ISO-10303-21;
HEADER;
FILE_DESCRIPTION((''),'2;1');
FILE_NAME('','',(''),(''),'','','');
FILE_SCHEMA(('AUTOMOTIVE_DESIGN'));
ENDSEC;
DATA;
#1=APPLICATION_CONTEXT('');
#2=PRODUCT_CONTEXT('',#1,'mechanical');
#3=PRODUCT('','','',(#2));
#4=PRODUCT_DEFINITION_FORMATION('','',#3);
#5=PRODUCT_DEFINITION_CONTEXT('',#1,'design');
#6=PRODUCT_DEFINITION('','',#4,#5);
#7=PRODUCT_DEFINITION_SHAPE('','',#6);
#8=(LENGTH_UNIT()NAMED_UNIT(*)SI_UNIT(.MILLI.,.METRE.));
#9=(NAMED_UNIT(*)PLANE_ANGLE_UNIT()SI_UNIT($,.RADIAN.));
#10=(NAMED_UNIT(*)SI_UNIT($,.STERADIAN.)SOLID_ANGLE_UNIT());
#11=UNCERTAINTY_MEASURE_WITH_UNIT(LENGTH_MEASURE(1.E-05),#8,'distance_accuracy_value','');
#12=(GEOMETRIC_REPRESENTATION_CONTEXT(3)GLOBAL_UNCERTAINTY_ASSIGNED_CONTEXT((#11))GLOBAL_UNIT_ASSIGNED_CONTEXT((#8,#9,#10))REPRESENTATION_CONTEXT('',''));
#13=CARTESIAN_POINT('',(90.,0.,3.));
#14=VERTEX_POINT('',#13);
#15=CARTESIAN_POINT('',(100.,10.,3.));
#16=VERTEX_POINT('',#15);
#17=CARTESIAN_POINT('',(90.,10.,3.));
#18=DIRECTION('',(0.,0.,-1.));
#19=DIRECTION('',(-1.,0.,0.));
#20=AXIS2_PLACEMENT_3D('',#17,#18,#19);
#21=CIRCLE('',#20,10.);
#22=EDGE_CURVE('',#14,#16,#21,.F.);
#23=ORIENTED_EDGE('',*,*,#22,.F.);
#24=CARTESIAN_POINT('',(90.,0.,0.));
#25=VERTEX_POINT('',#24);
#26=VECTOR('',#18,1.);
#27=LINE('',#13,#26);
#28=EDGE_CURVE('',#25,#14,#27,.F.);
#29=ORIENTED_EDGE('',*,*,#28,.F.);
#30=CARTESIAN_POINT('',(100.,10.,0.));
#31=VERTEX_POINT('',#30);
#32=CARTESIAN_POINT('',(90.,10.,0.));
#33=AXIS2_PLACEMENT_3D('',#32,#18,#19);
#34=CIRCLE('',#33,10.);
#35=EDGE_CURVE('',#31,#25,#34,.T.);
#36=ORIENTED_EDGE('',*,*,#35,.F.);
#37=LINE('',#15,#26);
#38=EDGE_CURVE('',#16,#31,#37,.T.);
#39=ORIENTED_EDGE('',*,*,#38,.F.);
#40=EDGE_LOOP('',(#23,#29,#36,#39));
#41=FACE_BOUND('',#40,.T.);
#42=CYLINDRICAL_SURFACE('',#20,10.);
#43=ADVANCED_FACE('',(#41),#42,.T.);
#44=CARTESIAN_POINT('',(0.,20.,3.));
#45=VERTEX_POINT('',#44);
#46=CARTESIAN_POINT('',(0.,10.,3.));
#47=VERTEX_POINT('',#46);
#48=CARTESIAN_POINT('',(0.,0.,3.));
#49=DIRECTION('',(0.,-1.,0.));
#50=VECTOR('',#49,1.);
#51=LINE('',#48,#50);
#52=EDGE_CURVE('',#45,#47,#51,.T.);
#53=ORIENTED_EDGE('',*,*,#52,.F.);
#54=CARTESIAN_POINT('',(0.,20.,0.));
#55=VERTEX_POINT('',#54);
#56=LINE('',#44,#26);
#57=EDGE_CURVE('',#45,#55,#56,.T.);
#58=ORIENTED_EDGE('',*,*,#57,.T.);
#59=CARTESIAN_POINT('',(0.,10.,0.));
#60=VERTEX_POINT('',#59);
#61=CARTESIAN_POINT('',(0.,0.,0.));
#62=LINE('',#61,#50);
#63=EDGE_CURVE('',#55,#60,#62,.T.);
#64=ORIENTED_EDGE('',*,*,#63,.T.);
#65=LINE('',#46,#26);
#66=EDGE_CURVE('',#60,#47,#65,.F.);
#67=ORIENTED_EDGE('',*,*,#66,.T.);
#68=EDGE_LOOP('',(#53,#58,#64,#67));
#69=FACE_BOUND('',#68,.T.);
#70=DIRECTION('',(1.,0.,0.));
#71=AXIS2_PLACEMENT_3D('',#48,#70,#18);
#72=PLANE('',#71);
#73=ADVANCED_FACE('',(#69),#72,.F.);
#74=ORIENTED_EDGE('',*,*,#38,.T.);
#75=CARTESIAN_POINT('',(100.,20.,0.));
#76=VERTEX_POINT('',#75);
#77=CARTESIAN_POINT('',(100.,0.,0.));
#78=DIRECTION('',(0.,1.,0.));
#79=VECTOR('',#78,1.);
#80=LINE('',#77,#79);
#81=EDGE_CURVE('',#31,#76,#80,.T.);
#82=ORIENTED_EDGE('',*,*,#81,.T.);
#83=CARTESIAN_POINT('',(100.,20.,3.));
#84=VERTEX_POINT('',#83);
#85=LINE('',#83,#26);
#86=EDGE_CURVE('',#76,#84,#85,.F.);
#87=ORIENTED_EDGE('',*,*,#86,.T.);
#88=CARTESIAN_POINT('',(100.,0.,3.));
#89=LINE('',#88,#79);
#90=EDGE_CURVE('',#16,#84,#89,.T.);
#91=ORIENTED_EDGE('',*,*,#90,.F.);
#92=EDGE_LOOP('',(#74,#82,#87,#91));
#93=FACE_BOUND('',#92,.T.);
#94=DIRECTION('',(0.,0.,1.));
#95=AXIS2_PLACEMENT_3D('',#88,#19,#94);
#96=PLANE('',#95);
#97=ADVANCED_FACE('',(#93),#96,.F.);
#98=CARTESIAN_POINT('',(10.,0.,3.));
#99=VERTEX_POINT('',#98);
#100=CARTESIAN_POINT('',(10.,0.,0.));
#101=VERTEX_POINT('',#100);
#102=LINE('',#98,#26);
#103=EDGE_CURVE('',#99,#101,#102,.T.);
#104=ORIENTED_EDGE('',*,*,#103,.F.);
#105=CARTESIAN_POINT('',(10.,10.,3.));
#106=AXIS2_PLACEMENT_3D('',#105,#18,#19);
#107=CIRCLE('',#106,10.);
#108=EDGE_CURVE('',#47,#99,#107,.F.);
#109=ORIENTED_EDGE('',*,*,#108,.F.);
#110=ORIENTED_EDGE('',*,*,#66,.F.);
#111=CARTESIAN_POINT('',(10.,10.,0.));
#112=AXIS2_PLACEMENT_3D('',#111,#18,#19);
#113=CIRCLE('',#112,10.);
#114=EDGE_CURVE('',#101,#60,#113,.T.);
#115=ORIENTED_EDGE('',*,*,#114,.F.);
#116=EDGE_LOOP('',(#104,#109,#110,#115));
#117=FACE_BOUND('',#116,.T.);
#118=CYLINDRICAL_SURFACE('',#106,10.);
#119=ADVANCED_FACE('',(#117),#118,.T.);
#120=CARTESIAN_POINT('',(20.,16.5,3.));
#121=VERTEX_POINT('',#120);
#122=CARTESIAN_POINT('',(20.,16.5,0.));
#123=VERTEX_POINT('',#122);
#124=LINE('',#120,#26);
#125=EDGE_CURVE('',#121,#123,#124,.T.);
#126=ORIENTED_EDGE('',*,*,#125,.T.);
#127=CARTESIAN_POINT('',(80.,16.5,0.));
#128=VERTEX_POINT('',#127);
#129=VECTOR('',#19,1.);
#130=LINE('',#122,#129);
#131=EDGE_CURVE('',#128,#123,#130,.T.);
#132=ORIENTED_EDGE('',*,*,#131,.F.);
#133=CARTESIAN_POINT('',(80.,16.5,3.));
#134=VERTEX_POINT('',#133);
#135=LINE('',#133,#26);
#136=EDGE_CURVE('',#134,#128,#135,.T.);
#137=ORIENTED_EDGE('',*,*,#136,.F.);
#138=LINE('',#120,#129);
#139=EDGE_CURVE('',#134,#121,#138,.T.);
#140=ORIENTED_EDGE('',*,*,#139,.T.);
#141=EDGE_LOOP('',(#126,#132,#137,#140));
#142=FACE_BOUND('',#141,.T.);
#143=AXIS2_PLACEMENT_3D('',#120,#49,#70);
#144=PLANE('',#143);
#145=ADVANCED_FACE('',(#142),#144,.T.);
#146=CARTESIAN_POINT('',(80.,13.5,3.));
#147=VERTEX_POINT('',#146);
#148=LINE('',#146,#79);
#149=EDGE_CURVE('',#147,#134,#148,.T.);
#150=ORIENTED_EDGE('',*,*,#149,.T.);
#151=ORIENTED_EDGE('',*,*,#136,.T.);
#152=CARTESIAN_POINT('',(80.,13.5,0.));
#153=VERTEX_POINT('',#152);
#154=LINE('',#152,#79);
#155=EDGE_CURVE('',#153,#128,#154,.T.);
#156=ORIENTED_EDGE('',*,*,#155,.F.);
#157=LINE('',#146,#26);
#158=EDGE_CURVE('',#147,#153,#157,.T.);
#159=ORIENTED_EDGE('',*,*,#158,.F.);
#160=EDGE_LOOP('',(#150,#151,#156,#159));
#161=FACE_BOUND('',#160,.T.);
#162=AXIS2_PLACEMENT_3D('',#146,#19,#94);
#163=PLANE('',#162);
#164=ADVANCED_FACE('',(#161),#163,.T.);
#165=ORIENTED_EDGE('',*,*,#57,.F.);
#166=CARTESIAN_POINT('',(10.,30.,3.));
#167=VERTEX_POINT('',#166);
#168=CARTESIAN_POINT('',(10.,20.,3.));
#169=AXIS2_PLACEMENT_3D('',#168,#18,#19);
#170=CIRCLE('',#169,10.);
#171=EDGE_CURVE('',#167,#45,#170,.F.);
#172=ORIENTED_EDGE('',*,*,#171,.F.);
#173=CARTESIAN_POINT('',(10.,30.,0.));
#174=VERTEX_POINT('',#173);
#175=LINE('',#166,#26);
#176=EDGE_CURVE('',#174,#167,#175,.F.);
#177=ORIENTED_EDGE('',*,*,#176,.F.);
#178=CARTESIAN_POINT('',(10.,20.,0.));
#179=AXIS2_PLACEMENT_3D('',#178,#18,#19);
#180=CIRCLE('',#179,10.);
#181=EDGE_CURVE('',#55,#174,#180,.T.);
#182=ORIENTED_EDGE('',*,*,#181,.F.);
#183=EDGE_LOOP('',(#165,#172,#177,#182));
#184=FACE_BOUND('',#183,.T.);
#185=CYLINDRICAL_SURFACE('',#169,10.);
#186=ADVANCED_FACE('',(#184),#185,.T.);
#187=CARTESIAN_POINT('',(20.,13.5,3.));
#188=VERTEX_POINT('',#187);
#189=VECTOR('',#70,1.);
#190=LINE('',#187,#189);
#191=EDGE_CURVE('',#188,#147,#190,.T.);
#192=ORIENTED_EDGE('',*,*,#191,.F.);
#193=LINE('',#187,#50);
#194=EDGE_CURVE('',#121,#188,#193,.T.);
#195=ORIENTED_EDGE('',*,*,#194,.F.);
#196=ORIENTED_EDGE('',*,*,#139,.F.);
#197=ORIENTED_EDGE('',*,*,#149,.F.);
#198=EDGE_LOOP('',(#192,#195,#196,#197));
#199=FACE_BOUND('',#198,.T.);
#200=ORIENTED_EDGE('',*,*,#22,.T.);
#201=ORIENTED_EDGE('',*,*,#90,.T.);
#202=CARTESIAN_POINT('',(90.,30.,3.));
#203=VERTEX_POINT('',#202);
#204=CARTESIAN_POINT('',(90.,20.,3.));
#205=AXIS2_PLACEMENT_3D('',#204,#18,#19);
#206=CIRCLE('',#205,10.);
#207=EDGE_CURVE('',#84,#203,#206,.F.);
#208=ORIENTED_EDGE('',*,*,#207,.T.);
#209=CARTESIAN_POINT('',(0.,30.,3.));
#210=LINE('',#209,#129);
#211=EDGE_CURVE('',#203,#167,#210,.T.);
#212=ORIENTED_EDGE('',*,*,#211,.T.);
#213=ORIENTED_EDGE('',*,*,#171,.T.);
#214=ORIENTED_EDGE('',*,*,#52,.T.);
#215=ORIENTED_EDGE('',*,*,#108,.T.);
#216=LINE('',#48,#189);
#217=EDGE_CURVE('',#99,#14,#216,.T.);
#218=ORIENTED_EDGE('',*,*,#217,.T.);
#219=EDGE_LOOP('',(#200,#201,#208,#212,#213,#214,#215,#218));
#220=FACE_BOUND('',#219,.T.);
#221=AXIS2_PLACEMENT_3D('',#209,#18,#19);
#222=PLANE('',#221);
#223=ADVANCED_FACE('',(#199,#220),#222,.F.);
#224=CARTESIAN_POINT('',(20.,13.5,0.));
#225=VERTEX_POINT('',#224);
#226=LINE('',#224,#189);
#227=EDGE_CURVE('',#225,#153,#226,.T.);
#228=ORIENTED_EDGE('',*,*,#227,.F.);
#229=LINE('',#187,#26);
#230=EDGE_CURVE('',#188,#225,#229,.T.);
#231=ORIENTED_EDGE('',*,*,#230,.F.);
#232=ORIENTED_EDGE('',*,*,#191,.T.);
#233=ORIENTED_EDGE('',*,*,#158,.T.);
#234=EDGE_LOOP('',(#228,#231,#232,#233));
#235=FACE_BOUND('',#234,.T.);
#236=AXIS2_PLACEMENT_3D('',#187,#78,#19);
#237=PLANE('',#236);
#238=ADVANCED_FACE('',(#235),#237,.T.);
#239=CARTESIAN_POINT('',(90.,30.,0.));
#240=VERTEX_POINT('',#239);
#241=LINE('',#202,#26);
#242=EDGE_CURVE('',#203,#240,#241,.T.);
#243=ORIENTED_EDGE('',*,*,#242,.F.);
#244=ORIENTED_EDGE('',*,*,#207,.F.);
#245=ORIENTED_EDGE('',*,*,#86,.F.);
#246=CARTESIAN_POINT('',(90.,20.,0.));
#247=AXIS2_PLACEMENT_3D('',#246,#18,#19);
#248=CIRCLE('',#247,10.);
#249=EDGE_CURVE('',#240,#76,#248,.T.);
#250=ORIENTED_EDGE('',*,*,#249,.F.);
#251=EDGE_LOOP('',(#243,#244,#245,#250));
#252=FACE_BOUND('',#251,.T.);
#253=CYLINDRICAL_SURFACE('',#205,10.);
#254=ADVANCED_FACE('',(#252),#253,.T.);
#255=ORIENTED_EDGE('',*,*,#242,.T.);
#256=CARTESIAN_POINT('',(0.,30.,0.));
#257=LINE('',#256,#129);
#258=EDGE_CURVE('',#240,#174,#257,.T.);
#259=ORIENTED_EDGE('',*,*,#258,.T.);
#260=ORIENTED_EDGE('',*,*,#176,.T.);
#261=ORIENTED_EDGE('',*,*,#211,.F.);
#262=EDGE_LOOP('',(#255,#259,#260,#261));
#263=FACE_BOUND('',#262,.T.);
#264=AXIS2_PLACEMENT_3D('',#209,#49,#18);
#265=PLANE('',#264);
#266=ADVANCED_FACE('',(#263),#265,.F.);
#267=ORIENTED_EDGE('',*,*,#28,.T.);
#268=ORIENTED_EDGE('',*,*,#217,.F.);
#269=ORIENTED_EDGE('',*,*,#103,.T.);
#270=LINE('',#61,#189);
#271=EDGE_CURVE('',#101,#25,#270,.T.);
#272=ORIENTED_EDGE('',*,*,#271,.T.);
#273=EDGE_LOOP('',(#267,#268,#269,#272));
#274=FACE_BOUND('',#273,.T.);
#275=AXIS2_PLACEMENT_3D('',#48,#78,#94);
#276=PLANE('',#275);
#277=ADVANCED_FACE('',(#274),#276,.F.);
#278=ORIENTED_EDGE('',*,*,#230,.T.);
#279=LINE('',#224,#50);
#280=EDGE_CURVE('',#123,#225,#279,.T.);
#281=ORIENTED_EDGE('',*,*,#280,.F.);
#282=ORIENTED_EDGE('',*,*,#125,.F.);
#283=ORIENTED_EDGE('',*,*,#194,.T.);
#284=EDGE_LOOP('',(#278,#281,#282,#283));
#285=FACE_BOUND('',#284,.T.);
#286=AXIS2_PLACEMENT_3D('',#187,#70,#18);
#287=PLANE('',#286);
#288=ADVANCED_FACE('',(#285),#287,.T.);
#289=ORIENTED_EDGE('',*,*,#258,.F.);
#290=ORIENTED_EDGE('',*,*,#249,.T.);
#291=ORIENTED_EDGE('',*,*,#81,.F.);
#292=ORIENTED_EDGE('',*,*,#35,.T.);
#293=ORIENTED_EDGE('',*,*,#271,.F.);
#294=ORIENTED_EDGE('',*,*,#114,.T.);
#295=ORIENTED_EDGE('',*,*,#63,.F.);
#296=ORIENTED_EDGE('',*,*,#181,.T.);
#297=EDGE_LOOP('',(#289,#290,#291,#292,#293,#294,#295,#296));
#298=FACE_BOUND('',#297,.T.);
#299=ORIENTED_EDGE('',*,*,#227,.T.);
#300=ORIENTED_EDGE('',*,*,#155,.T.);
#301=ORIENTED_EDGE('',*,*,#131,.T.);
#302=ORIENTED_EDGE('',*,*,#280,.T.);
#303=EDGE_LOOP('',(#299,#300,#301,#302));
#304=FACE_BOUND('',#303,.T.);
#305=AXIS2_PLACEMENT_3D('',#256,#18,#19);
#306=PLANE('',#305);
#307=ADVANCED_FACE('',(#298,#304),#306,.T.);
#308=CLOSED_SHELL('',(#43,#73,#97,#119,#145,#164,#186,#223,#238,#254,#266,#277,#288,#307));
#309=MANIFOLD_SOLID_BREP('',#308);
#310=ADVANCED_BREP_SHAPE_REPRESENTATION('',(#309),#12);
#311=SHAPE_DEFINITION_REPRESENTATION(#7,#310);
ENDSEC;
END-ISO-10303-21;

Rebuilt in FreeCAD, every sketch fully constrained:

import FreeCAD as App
import Part
import Sketcher
from FreeCAD import Vector
Q = App.Units.Quantity


def edges_at(feature, points):
    """Names of the edges that pass closest to the given points."""
    edges = feature.Shape.Edges
    near = lambda p: min(range(len(edges)), key=lambda i: edges[i].distToShape(Part.Vertex(*p))[0])
    return sorted({f"Edge{near(p) + 1}" for p in points})

doc = App.newDocument("Part")
params = doc.addObject("Spreadsheet::Sheet", "Params")
for row, (alias, value) in enumerate([
    ("sketch1_width", "100 mm"),
    ("sketch1_width2", "60 mm"),
    ("sketch1_height", "30 mm"),
    ("sketch1_height2", "3 mm"),
    ("pad1_length", "3 mm"),
    ("fillet_radius", "10 mm"),
], start=1):
    params.set(f"A{row}", alias)
    params.set(f"B{row}", "=" + value)
    params.setAlias(f"B{row}", alias)

body = doc.addObject("PartDesign::Body", "Body")

sketch1 = body.newObject("Sketcher::SketchObject", "Sketch")
sketch1.AttachmentSupport = (doc.getObject("XY_Plane"), [""])
sketch1.MapMode = "FlatFace"
sketch1.addGeometry([
    Part.LineSegment(Vector(0, 30, 0), Vector(0, 0, 0)),
    Part.LineSegment(Vector(0, 0, 0), Vector(100, 0, 0)),
    Part.LineSegment(Vector(100, 0, 0), Vector(100, 30, 0)),
    Part.LineSegment(Vector(100, 30, 0), Vector(0, 30, 0)),
    Part.LineSegment(Vector(80, 13.5, 0), Vector(20, 13.5, 0)),
    Part.LineSegment(Vector(20, 13.5, 0), Vector(20, 16.5, 0)),
    Part.LineSegment(Vector(20, 16.5, 0), Vector(80, 16.5, 0)),
    Part.LineSegment(Vector(80, 16.5, 0), Vector(80, 13.5, 0)),
], False)
sketch1.addConstraint([
    Sketcher.Constraint("Coincident", 0, 2, 1, 1),
    Sketcher.Constraint("Coincident", 1, 2, 2, 1),
    Sketcher.Constraint("Coincident", 2, 2, 3, 1),
    Sketcher.Constraint("Coincident", 3, 2, 0, 1),
    Sketcher.Constraint("Coincident", 4, 2, 5, 1),
    Sketcher.Constraint("Coincident", 5, 2, 6, 1),
    Sketcher.Constraint("Coincident", 6, 2, 7, 1),
    Sketcher.Constraint("Coincident", 7, 2, 4, 1),
    Sketcher.Constraint("Vertical", 0),
    Sketcher.Constraint("Horizontal", 1),
    Sketcher.Constraint("Vertical", 2),
    Sketcher.Constraint("Horizontal", 3),
    Sketcher.Constraint("Horizontal", 4),
    Sketcher.Constraint("Vertical", 5),
    Sketcher.Constraint("Horizontal", 6),
    Sketcher.Constraint("Vertical", 7),
    Sketcher.Constraint("Coincident", 0, 2, -1, 1),
    Sketcher.Constraint("DistanceX", 1, 1, 1, 2, Q("100 mm")),
    Sketcher.Constraint("DistanceX", 4, 2, 4, 1, Q("60 mm")),
    Sketcher.Constraint("DistanceY", 0, 2, 0, 1, Q("30 mm")),
    Sketcher.Constraint("DistanceY", 5, 1, 5, 2, Q("3 mm")),
    Sketcher.Constraint("DistanceX", -1, 1, 4, 2, Q("20 mm")),
    Sketcher.Constraint("DistanceY", -1, 1, 4, 2, Q("13.5 mm")),
])
sketch1.setExpression("Constraints[17]", "Params.sketch1_width")
sketch1.setExpression("Constraints[18]", "Params.sketch1_width2")
sketch1.setExpression("Constraints[19]", "Params.sketch1_height")
sketch1.setExpression("Constraints[20]", "Params.sketch1_height2")
pad1 = body.newObject("PartDesign::Pad", "Pad")
pad1.Profile = sketch1
pad1.setExpression("Length", "Params.pad1_length")
doc.recompute()

fillet = body.newObject("PartDesign::Fillet", "Fillet")
fillet.Base = (pad1, edges_at(pad1, [
    (0, 30, 1.5),
    (100, 30, 1.5),
    (100, 0, 1.5),
    (0, 0, 1.5),
]))
fillet.setExpression("Radius", "Params.fillet_radius")

doc.recompute()
